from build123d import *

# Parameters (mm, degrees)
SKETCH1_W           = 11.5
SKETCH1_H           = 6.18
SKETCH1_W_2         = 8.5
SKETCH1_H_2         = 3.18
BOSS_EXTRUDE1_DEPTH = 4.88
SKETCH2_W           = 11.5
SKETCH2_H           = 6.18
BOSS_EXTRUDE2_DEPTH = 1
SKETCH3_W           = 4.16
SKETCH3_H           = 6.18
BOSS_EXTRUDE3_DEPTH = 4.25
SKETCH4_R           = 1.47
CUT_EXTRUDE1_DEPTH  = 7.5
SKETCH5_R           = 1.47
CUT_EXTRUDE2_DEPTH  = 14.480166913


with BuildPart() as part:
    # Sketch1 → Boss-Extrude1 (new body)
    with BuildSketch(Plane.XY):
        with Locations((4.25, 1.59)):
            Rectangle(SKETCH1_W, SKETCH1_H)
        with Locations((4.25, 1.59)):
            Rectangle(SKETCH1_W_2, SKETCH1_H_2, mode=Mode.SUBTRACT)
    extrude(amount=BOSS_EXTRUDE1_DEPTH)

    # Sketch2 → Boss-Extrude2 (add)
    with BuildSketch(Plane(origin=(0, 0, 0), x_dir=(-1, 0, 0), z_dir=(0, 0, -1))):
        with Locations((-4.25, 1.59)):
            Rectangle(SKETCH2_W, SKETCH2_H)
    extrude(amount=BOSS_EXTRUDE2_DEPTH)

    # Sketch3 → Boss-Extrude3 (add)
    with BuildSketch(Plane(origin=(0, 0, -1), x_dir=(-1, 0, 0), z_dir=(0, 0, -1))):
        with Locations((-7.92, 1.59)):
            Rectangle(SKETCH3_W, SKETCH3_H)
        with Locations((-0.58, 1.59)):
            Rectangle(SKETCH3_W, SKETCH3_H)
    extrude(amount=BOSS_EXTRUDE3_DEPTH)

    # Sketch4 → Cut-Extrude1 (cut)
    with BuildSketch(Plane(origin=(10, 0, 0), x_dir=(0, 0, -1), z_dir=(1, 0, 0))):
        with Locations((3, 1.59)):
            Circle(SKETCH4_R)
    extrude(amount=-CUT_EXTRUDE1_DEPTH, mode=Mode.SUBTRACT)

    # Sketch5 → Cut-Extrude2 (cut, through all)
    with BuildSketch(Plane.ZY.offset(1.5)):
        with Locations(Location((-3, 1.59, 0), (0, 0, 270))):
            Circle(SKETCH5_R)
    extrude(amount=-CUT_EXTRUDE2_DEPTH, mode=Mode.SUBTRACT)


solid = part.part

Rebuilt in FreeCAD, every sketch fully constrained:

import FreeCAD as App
import Part
import Sketcher
from FreeCAD import Vector
Q = App.Units.Quantity

doc = App.newDocument("Part")
params = doc.addObject("Spreadsheet::Sheet", "Params")
for row, (alias, value) in enumerate([
    ("sketch1_width", "11.5 mm"),
    ("sketch1_width2", "8.5 mm"),
    ("sketch1_height", "6.18 mm"),
    ("sketch1_height2", "3.18 mm"),
    ("pad1_length", "4.88 mm"),
    ("sketch2_width", "11.5 mm"),
    ("sketch2_height", "6.18 mm"),
    ("pad2_length", "1 mm"),
    ("sketch3_width", "4.16 mm"),
    ("sketch3_height", "6.18 mm"),
    ("pad3_length", "4.25 mm"),
    ("sketch4_diameter", "2.94 mm"),
    ("pocket1_length", "7.5 mm"),
    ("sketch5_diameter", "2.94 mm"),
], start=1):
    params.set(f"A{row}", alias)
    params.set(f"B{row}", "=" + value)
    params.setAlias(f"B{row}", alias)

body = doc.addObject("PartDesign::Body", "Body")

# Sketch on XY plane
sketch1 = body.newObject("Sketcher::SketchObject", "Sketch")
sketch1.AttachmentSupport = (doc.getObject("XY_Plane"), [""])
sketch1.MapMode = "FlatFace"
sketch1.addGeometry([
    Part.LineSegment(Vector(-1.5, 4.7, 0), Vector(-1.5, -1.5, 0)),  # 0
    Part.LineSegment(Vector(-1.5, -1.5, 0), Vector(10, -1.5, 0)),  # 1
    Part.LineSegment(Vector(10, -1.5, 0), Vector(10, 4.7, 0)),  # 2
    Part.LineSegment(Vector(10, 4.7, 0), Vector(-1.5, 4.7, 0)),  # 3
    Part.LineSegment(Vector(8.5, 0, 0), Vector(0, 0, 0)),  # 4
    Part.LineSegment(Vector(0, 0, 0), Vector(0, 3.2, 0)),  # 5
    Part.LineSegment(Vector(0, 3.2, 0), Vector(8.5, 3.2, 0)),  # 6
    Part.LineSegment(Vector(8.5, 3.2, 0), Vector(8.5, 0, 0)),  # 7
], False)
sketch1.addConstraint([
    Sketcher.Constraint("Coincident", 0, 2, 1, 1),
    Sketcher.Constraint("Coincident", 1, 2, 2, 1),
    Sketcher.Constraint("Coincident", 2, 2, 3, 1),
    Sketcher.Constraint("Coincident", 3, 2, 0, 1),
    Sketcher.Constraint("Coincident", 4, 2, 5, 1),
    Sketcher.Constraint("Coincident", 5, 2, 6, 1),
    Sketcher.Constraint("Coincident", 6, 2, 7, 1),
    Sketcher.Constraint("Coincident", 7, 2, 4, 1),
    Sketcher.Constraint("Vertical", 0),
    Sketcher.Constraint("Horizontal", 1),
    Sketcher.Constraint("Vertical", 2),
    Sketcher.Constraint("Horizontal", 3),
    Sketcher.Constraint("Horizontal", 4),
    Sketcher.Constraint("Vertical", 5),
    Sketcher.Constraint("Horizontal", 6),
    Sketcher.Constraint("Vertical", 7),
    Sketcher.Constraint("Coincident", 4, 2, -1, 1),
    Sketcher.Constraint("DistanceX", 1, 1, 1, 2, Q("11.5 mm")),
    Sketcher.Constraint("DistanceX", 4, 2, 4, 1, Q("8.5 mm")),
    Sketcher.Constraint("DistanceX", -1, 1, 1, 2, Q("10 mm")),
    Sketcher.Constraint("DistanceY", 0, 2, 0, 1, Q("6.18 mm")),
    Sketcher.Constraint("DistanceY", 5, 1, 5, 2, Q("3.18 mm")),
    Sketcher.Constraint("DistanceY", 0, 2, -1, 1, Q("1.5 mm")),
])
sketch1.setExpression("Constraints[17]", "Params.sketch1_width")
sketch1.setExpression("Constraints[18]", "Params.sketch1_width2")
sketch1.setExpression("Constraints[20]", "Params.sketch1_height")
sketch1.setExpression("Constraints[21]", "Params.sketch1_height2")
pad1 = body.newObject("PartDesign::Pad", "Pad")
pad1.Profile = sketch1
pad1.setExpression("Length", "Params.pad1_length")

# Sketch on XY plane
sketch2 = body.newObject("Sketcher::SketchObject", "Sketch001")
sketch2.AttachmentSupport = (doc.getObject("XY_Plane"), [""])
sketch2.MapMode = "FlatFace"
sketch2.addGeometry([
    Part.LineSegment(Vector(10, 5, 0), Vector(10, -2, 0)),
    Part.LineSegment(Vector(10, -2, 0), Vector(-2, -2, 0)),
    Part.LineSegment(Vector(-2, -2, 0), Vector(-2, 5, 0)),
    Part.LineSegment(Vector(-2, 5, 0), Vector(10, 5, 0)),
], False)
sketch2.addConstraint([
    Sketcher.Constraint("Coincident", 0, 2, 1, 1),
    Sketcher.Constraint("Coincident", 1, 2, 2, 1),
    Sketcher.Constraint("Coincident", 2, 2, 3, 1),
    Sketcher.Constraint("Coincident", 3, 2, 0, 1),
    Sketcher.Constraint("Vertical", 0),
    Sketcher.Constraint("Horizontal", 1),
    Sketcher.Constraint("Vertical", 2),
    Sketcher.Constraint("Horizontal", 3),
    Sketcher.Constraint("DistanceX", 1, 2, 1, 1, Q("11.5 mm")),
    Sketcher.Constraint("DistanceX", -1, 1, 0, 2, Q("10 mm")),
    Sketcher.Constraint("DistanceY", 0, 2, 0, 1, Q("6.18 mm")),
    Sketcher.Constraint("DistanceY", 0, 2, -1, 1, Q("1.5 mm")),
])
sketch2.setExpression("Constraints[8]", "Params.sketch2_width")
sketch2.setExpression("Constraints[10]", "Params.sketch2_height")
pad2 = body.newObject("PartDesign::Pad", "Pad001")
pad2.Profile = sketch2
pad2.setExpression("Length", "Params.pad2_length")
pad2.Reversed = True

# Sketch on XY plane
sketch3 = body.newObject("Sketcher::SketchObject", "Sketch002")
sketch3.AttachmentSupport = (doc.getObject("XY_Plane"), [""])
sketch3.MapMode = "FlatFace"
sketch3.AttachmentOffset = App.Placement(Vector(0, 0, -1), App.Rotation())
sketch3.addGeometry([
    Part.LineSegment(Vector(10, 4.7, 0), Vector(10, -1.5, 0)),  # 0
    Part.LineSegment(Vector(10, -1.5, 0), Vector(5.8, -1.5, 0)),  # 1
    Part.LineSegment(Vector(5.8, -1.5, 0), Vector(5.8, 4.7, 0)),  # 2
    Part.LineSegment(Vector(5.8, 4.7, 0), Vector(10, 4.7, 0)),  # 3
    Part.LineSegment(Vector(2.7, 4.7, 0), Vector(2.7, -1.5, 0)),  # 4
    Part.LineSegment(Vector(2.7, -1.5, 0), Vector(-1.5, -1.5, 0)),  # 5
    Part.LineSegment(Vector(-1.5, -1.5, 0), Vector(-1.5, 4.7, 0)),  # 6
    Part.LineSegment(Vector(-1.5, 4.7, 0), Vector(2.7, 4.7, 0)),  # 7
], False)
sketch3.addConstraint([
    Sketcher.Constraint("Coincident", 0, 2, 1, 1),
    Sketcher.Constraint("Coincident", 1, 2, 2, 1),
    Sketcher.Constraint("Coincident", 2, 2, 3, 1),
    Sketcher.Constraint("Coincident", 3, 2, 0, 1),
    Sketcher.Constraint("Coincident", 4, 2, 5, 1),
    Sketcher.Constraint("Coincident", 5, 2, 6, 1),
    Sketcher.Constraint("Coincident", 6, 2, 7, 1),
    Sketcher.Constraint("Coincident", 7, 2, 4, 1),
    Sketcher.Constraint("Vertical", 0),
    Sketcher.Constraint("Horizontal", 1),
    Sketcher.Constraint("Vertical", 2),
    Sketcher.Constraint("Horizontal", 3),
    Sketcher.Constraint("Vertical", 4),
    Sketcher.Constraint("Horizontal", 5),
    Sketcher.Constraint("Vertical", 6),
    Sketcher.Constraint("Horizontal", 7),
    Sketcher.Constraint("Horizontal", 1, 2, 4, 2),
    Sketcher.Constraint("Horizontal", 3, 2, 6, 2),
    Sketcher.Constraint("Equal", 3, 5),
    Sketcher.Constraint("DistanceX", -1, 1, 0, 2, Q("10 mm")),
    Sketcher.Constraint("DistanceX", 1, 2, 1, 1, Q("4.16 mm")),
    Sketcher.Constraint("DistanceY", 0, 2, 0, 1, Q("6.18 mm")),
    Sketcher.Constraint("DistanceY", 0, 2, -1, 1, Q("1.5 mm")),
    Sketcher.Constraint("DistanceX", 5, 2, -1, 1, Q("1.5 mm")),
])
sketch3.setExpression("Constraints[20]", "Params.sketch3_width")
sketch3.setExpression("Constraints[21]", "Params.sketch3_height")
pad3 = body.newObject("PartDesign::Pad", "Pad002")
pad3.Profile = sketch3
pad3.setExpression("Length", "Params.pad3_length")
pad3.Reversed = True

# Sketch on YZ plane
sketch4 = body.newObject("Sketcher::SketchObject", "Sketch003")
sketch4.AttachmentSupport = (doc.getObject("YZ_Plane"), [""])
sketch4.MapMode = "FlatFace"
sketch4.AttachmentOffset = App.Placement(Vector(0, 0, 10), App.Rotation())
sketch4.addGeometry(Part.Circle(Vector(1.6, -3, 0), Vector(0, 0, 1), 1.5), False)
sketch4.addConstraint([
    Sketcher.Constraint("Diameter", 0, Q("2.94 mm")),
    Sketcher.Constraint("DistanceY", 0, 3, -1, 1, Q("3 mm")),
    Sketcher.Constraint("DistanceX", -1, 1, 0, 3, Q("1.59 mm")),
])
sketch4.setExpression("Constraints[0]", "Params.sketch4_diameter")
pocket1 = body.newObject("PartDesign::Pocket", "Pocket")
pocket1.Profile = sketch4
pocket1.setExpression("Length", "Params.pocket1_length")

# Sketch on YZ plane
sketch5 = body.newObject("Sketcher::SketchObject", "Sketch004")
sketch5.AttachmentSupport = (doc.getObject("YZ_Plane"), [""])
sketch5.MapMode = "FlatFace"
sketch5.AttachmentOffset = App.Placement(Vector(0, 0, -1.5), App.Rotation())
sketch5.addGeometry(Part.Circle(Vector(1.6, -3, 0), Vector(0, 0, 1), 1.5), False)
sketch5.addConstraint([
    Sketcher.Constraint("Diameter", 0, Q("2.94 mm")),
    Sketcher.Constraint("DistanceY", 0, 3, -1, 1, Q("3 mm")),
    Sketcher.Constraint("DistanceX", -1, 1, 0, 3, Q("1.59 mm")),
])
sketch5.setExpression("Constraints[0]", "Params.sketch5_diameter")
pocket2 = body.newObject("PartDesign::Pocket", "Pocket001")
pocket2.Profile = sketch5
pocket2.Type = "ThroughAll"
pocket2.Reversed = True

doc.recompute()
